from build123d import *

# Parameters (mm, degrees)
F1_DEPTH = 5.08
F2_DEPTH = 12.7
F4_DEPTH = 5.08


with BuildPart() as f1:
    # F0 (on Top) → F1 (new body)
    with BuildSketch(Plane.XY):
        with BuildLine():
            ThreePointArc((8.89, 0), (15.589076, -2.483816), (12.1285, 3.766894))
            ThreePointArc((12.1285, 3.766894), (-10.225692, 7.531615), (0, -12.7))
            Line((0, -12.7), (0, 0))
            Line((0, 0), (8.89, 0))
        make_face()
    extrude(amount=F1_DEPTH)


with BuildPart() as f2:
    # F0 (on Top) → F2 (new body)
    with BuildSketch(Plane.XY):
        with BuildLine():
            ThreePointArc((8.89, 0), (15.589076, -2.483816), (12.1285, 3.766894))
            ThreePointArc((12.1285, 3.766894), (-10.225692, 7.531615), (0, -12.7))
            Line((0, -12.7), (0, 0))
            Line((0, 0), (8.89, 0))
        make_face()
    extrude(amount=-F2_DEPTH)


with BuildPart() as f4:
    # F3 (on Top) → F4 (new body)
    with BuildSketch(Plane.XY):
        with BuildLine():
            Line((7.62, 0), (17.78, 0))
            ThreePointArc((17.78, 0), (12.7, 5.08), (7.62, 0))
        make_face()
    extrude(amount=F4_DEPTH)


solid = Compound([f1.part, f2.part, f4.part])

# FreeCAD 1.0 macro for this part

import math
import FreeCAD as App
import Part
import Sketcher

V = App.Vector
Q = App.Units.Quantity

doc = App.newDocument("Part")
body = doc.addObject("PartDesign::Body", "Body")

sketch1 = doc.addObject("Sketcher::SketchObject", "Sketch")
body.addObject(sketch1)
sketch1.AttachmentSupport = (doc.XY_Plane, [""])
sketch1.MapMode = "FlatFace"
sketch1.addGeometry([
    Part.ArcOfCircle(Part.Circle(V(12.7, 0, 0), V(0, 0, 1), 3.8), math.radians(-180), math.radians(99)),
    Part.ArcOfCircle(Part.Circle(V(0, 0, 0), V(0, 0, 1), 12.7), math.radians(17), math.radians(270)),
    Part.LineSegment(V(0, -12.7, 0), V(0, 0, 0)),
    Part.LineSegment(V(0, 0, 0), V(8.9, 0, 0)),
], False)
sketch1.addConstraint([
    Sketcher.Constraint("Coincident", 0, 2, 1, 1),
    Sketcher.Constraint("Coincident", 1, 2, 2, 1),
    Sketcher.Constraint("Coincident", 2, 2, 3, 1),
    Sketcher.Constraint("Coincident", 3, 2, 0, 1),
    Sketcher.Constraint("Vertical", 2),
    Sketcher.Constraint("Horizontal", 3),
    Sketcher.Constraint("Coincident", 1, 3, -1, 1),
    Sketcher.Constraint("Coincident", 2, 2, -1, 1),
    Sketcher.Constraint("PointOnObject", 0, 3, -1),
    Sketcher.Constraint("Radius", 1, Q("0.5 in")),
    Sketcher.Constraint("Radius", 0, Q("0.15 in")),
    Sketcher.Constraint("DistanceX", 3, 1, 3, 2, Q("0.35 in")),
])
pad1 = doc.addObject("PartDesign::Pad", "Pad")
body.addObject(pad1)
pad1.Profile = sketch1
pad1.Length = Q("0.2 in")
body2 = doc.addObject("PartDesign::Body", "Body001")

sketch2 = doc.addObject("Sketcher::SketchObject", "Sketch001")
body2.addObject(sketch2)
sketch2.AttachmentSupport = (doc.getObject("XY_Plane001"), [""])
sketch2.MapMode = "FlatFace"
sketch2.addGeometry([
    Part.ArcOfCircle(Part.Circle(V(12.7, 0, 0), V(0, 0, 1), 3.8), math.radians(-180), math.radians(99)),
    Part.ArcOfCircle(Part.Circle(V(0, 0, 0), V(0, 0, 1), 12.7), math.radians(17), math.radians(270)),
    Part.LineSegment(V(0, -12.7, 0), V(0, 0, 0)),
    Part.LineSegment(V(0, 0, 0), V(8.9, 0, 0)),
], False)
sketch2.addConstraint([
    Sketcher.Constraint("Coincident", 0, 2, 1, 1),
    Sketcher.Constraint("Coincident", 1, 2, 2, 1),
    Sketcher.Constraint("Coincident", 2, 2, 3, 1),
    Sketcher.Constraint("Coincident", 3, 2, 0, 1),
    Sketcher.Constraint("Vertical", 2),
    Sketcher.Constraint("Horizontal", 3),
    Sketcher.Constraint("Coincident", 1, 3, -1, 1),
    Sketcher.Constraint("Coincident", 2, 2, -1, 1),
    Sketcher.Constraint("PointOnObject", 0, 3, -1),
    Sketcher.Constraint("Radius", 1, Q("0.5 in")),
    Sketcher.Constraint("Radius", 0, Q("0.15 in")),
    Sketcher.Constraint("DistanceX", 3, 1, 3, 2, Q("0.35 in")),
])
pad2 = doc.addObject("PartDesign::Pad", "Pad001")
body2.addObject(pad2)
pad2.Profile = sketch2
pad2.Length = Q("0.5 in")
pad2.Reversed = True
body3 = doc.addObject("PartDesign::Body", "Body002")

sketch3 = doc.addObject("Sketcher::SketchObject", "Sketch002")
body3.addObject(sketch3)
sketch3.AttachmentSupport = (doc.getObject("XY_Plane002"), [""])
sketch3.MapMode = "FlatFace"
sketch3.addGeometry([
    Part.LineSegment(V(8, 0, 0), V(18, 0, 0)),
    Part.ArcOfCircle(Part.Circle(V(13, 0, 0), V(0, 0, 1), 5), math.radians(0), math.radians(180)),
], False)
sketch3.addConstraint([
    Sketcher.Constraint("Coincident", 0, 1, 1, 2),
    Sketcher.Constraint("Coincident", 1, 1, 0, 2),
    Sketcher.Constraint("Horizontal", 0),
    Sketcher.Constraint("PointOnObject", 1, 3, -1),
    Sketcher.Constraint("PointOnObject", 0, 1, -1),
    Sketcher.Constraint("Radius", 1, Q("0.2 in")),
    Sketcher.Constraint("DistanceX", -1, 1, 1, 3, Q("0.5 in")),
])
pad3 = doc.addObject("PartDesign::Pad", "Pad002")
body3.addObject(pad3)
pad3.Profile = sketch3
pad3.Length = Q("0.2 in")

doc.recompute()
